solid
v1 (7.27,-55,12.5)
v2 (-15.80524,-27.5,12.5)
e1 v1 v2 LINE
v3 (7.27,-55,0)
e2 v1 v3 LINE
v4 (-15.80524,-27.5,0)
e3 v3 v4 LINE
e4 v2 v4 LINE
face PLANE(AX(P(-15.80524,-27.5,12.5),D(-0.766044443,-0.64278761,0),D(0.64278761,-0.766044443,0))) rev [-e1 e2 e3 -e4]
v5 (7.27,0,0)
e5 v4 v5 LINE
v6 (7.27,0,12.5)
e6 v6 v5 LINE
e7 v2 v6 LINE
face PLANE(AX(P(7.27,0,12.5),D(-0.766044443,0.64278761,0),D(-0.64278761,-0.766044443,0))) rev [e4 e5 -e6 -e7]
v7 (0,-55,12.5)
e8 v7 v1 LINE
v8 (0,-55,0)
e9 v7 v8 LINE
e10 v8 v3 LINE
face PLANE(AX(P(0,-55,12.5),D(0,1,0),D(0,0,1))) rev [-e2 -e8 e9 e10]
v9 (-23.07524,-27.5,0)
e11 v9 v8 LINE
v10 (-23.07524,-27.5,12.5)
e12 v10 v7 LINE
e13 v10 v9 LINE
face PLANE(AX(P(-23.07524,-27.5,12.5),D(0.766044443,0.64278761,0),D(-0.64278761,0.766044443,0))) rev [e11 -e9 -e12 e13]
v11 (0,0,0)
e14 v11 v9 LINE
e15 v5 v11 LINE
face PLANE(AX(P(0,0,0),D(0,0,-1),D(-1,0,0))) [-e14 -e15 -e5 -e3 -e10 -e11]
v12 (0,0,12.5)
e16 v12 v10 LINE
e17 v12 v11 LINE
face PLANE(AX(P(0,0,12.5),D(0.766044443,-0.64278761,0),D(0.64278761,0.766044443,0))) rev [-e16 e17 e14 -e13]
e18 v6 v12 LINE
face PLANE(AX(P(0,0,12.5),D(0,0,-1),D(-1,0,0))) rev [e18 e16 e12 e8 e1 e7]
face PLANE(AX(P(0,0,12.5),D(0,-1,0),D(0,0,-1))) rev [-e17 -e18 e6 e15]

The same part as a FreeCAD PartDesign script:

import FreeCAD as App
import Part
import Sketcher
from FreeCAD import Vector
Q = App.Units.Quantity

doc = App.newDocument("Part")
body = doc.addObject("PartDesign::Body", "Body")

# Sketch on XY plane
sketch1 = doc.addObject("Sketcher::SketchObject", "Sketch")
body.addObject(sketch1)
sketch1.AttachmentSupport = (doc.XY_Plane, [""])
sketch1.MapMode = "FlatFace"
sketch1.addGeometry([
    Part.LineSegment(Vector(0, 0, 0), Vector(-23, -28, 0)),  # 0
    Part.LineSegment(Vector(-23, -28, 0), Vector(0, -55, 0)),  # 1
    Part.LineSegment(Vector(0, -55, 0), Vector(7, -55, 0)),  # 2
    Part.LineSegment(Vector(7, -55, 0), Vector(-16, -28, 0)),  # 3
    Part.LineSegment(Vector(-16, -28, 0), Vector(7, 0, 0)),  # 4
    Part.LineSegment(Vector(7, 0, 0), Vector(0, 0, 0)),  # 5
], False)
sketch1.addConstraint([
    Sketcher.Constraint("Coincident", 0, 2, 1, 1),
    Sketcher.Constraint("Coincident", 1, 2, 2, 1),
    Sketcher.Constraint("Coincident", 2, 2, 3, 1),
    Sketcher.Constraint("Coincident", 3, 2, 4, 1),
    Sketcher.Constraint("Coincident", 4, 2, 5, 1),
    Sketcher.Constraint("Coincident", 5, 2, 0, 1),
    Sketcher.Constraint("Horizontal", 2),
    Sketcher.Constraint("Horizontal", 5),
    Sketcher.Constraint("Coincident", 5, 2, -1, 1),
    Sketcher.Constraint("PointOnObject", 1, 2, -2),
    Sketcher.Constraint("Parallel", 1, 3),
    Sketcher.Constraint("Parallel", 0, 4),
    Sketcher.Constraint("Horizontal", 0, 2, 3, 2),
    Sketcher.Constraint("Equal", 0, 1),
    Sketcher.Constraint("Angle", 0, Q("-130 deg")),
    Sketcher.Constraint("DistanceY", 1, 2, -1, 1, 55.0),
    Sketcher.Constraint("DistanceX", 2, 1, 2, 2, 7.27),
])
pad1 = doc.addObject("PartDesign::Pad", "Pad")
body.addObject(pad1)
pad1.Profile = sketch1
pad1.Length = 12.5

doc.recompute()
